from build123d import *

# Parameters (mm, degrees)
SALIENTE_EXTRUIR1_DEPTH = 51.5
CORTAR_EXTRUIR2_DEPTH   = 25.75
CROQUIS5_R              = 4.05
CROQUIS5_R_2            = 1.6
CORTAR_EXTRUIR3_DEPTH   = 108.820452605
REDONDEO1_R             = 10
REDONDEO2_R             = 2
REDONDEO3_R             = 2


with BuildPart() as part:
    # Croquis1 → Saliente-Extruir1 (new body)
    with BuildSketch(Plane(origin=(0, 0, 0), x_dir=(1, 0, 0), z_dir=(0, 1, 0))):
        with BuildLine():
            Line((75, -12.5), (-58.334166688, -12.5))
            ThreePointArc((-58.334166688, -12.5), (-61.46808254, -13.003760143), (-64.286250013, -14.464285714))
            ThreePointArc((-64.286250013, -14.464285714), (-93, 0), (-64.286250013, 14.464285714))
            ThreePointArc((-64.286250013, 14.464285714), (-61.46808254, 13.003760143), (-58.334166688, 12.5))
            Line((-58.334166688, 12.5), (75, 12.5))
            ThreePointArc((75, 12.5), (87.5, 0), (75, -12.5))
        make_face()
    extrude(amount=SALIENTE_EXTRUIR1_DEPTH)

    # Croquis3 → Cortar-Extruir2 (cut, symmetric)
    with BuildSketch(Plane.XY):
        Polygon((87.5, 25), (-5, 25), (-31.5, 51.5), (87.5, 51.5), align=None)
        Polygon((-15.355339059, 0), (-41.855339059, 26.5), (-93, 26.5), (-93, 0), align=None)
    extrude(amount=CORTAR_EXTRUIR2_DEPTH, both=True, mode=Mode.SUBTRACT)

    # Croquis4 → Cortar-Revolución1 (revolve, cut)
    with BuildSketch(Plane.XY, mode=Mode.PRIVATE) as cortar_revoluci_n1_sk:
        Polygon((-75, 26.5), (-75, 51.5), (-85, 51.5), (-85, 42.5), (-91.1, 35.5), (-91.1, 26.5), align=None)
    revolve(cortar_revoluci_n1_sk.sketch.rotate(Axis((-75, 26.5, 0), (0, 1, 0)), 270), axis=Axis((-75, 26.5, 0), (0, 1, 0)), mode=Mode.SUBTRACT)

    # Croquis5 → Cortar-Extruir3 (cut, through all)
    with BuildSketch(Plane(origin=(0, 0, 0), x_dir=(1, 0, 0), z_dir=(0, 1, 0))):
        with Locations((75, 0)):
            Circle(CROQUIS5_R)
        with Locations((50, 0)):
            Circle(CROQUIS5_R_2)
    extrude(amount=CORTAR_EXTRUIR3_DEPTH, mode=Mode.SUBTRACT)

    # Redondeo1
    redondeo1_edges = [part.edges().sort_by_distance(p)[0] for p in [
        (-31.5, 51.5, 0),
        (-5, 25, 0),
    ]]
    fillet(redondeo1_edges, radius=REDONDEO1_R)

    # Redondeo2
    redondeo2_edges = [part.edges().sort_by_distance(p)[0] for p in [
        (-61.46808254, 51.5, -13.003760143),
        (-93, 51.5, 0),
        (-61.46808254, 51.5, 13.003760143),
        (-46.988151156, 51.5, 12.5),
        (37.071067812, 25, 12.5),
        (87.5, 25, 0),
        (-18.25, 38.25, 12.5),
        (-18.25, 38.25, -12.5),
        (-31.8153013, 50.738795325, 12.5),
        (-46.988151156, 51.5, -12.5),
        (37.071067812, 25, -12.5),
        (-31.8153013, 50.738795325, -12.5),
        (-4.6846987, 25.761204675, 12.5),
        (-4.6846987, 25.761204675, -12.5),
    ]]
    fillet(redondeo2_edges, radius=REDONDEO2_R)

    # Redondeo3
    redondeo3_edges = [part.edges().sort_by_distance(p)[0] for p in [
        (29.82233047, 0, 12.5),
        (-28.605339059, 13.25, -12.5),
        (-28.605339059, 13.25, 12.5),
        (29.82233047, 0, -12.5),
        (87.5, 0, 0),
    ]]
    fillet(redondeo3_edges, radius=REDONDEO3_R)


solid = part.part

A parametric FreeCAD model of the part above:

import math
import FreeCAD as App
import Part
import Sketcher

V = App.Vector
Q = App.Units.Quantity


def edges_at(feature, points):
    """Names of the edges that pass closest to the given points."""
    edges = feature.Shape.Edges
    near = lambda p: min(range(len(edges)), key=lambda i: edges[i].distToShape(Part.Vertex(*p))[0])
    return sorted({f"Edge{near(p) + 1}" for p in points})

doc = App.newDocument("Part")
params = doc.addObject("Spreadsheet::Sheet", "Params")
for row, (alias, value) in enumerate([
    ("sketch1_radius", "10 mm"),
    ("sketch1_radius2", "18 mm"),
    ("sketch1_radius3", "12.5 mm"),
    ("pad1_length", "51.5 mm"),
    ("sketch2_width", "119 mm"),
    ("sketch2_width2", "92.5 mm"),
    ("pocket1_length", "51.5 mm"),
    ("sketch3_width", "10 mm"),
    ("sketch3_height", "25 mm"),
    ("sketch3_height2", "9 mm"),
    ("sketch3_width2", "16.1 mm"),
    ("groove_angle", "360 deg"),
    ("sketch4_diameter", "8.1 mm"),
    ("sketch4_diameter2", "3.2 mm"),
    ("fillet_radius", "10 mm"),
    ("fillet2_radius", "2 mm"),
    ("fillet3_radius", "2 mm"),
], start=1):
    params.set(f"A{row}", alias)
    params.set(f"B{row}", "=" + value)
    params.setAlias(f"B{row}", alias)

body = doc.addObject("PartDesign::Body", "Body")

# Sketch on XZ plane
sketch1 = body.newObject("Sketcher::SketchObject", "Sketch")
sketch1.AttachmentSupport = (doc.getObject("XZ_Plane"), [""])
sketch1.MapMode = "FlatFace"
sketch1.addGeometry([
    Part.LineSegment(V(-58, 12, 0), V(75, 12, 0)),  # 0
    Part.ArcOfCircle(Part.Circle(V(75, 0, 0), V(0, 0, 1), 12), math.radians(-90), math.radians(90)),  # 1
    Part.LineSegment(V(75, -12, 0), V(-58, -12, 0)),  # 2
    Part.ArcOfCircle(Part.Circle(V(-58, -23, 0), V(0, 0, 1), 10), math.radians(90), math.radians(127)),  # 3
    Part.ArcOfCircle(Part.Circle(V(-75, 0, 0), V(0, 0, 1), 18), math.radians(53), math.radians(307)),  # 4
    Part.ArcOfCircle(Part.Circle(V(-58, 23, 0), V(0, 0, 1), 10), math.radians(-127), math.radians(-90)),  # 5
], False)
sketch1.addConstraint([
    Sketcher.Constraint("Tangent", 0, 2, 1, 2),
    Sketcher.Constraint("Tangent", 1, 1, 2, 1),
    Sketcher.Constraint("Tangent", 2, 2, 3, 1),
    Sketcher.Constraint("Tangent", 3, 2, 4, 2),
    Sketcher.Constraint("Tangent", 4, 1, 5, 1),
    Sketcher.Constraint("Tangent", 5, 2, 0, 1),
    Sketcher.Constraint("Horizontal", 0),
    Sketcher.Constraint("Horizontal", 2),
    Sketcher.Constraint("Equal", 3, 5),
    Sketcher.Constraint("Symmetric", 1, 3, 4, 3, -1, 1),
    Sketcher.Constraint("PointOnObject", 1, 3, -1),
    Sketcher.Constraint("Radius", 3, Q("10 mm")),
    Sketcher.Constraint("Radius", 4, Q("18 mm")),
    Sketcher.Constraint("Radius", 1, Q("12.5 mm")),
    Sketcher.Constraint("DistanceX", -1, 1, 1, 3, Q("75 mm")),
])
sketch1.setExpression("Constraints[11]", "Params.sketch1_radius")
sketch1.setExpression("Constraints[12]", "Params.sketch1_radius2")
sketch1.setExpression("Constraints[13]", "Params.sketch1_radius3")
pad1 = body.newObject("PartDesign::Pad", "Pad")
pad1.Profile = sketch1
pad1.setExpression("Length", "Params.pad1_length")
pad1.Reversed = True

# Sketch on XY plane
sketch2 = body.newObject("Sketcher::SketchObject", "Sketch001")
sketch2.AttachmentSupport = (doc.getObject("XY_Plane"), [""])
sketch2.MapMode = "FlatFace"
sketch2.addGeometry([
    Part.LineSegment(V(-5, 25, 0), V(88, 25, 0)),  # 0
    Part.LineSegment(V(88, 25, 0), V(88, 52, 0)),  # 1
    Part.LineSegment(V(88, 52, 0), V(-32, 52, 0)),  # 2
    Part.LineSegment(V(-32, 52, 0), V(-5, 25, 0)),  # 3
    Part.LineSegment(V(-15, 0, 0), V(-42, 26, 0)),  # 4
    Part.LineSegment(V(-42, 26, 0), V(-93, 26, 0)),  # 5
    Part.LineSegment(V(-93, 26, 0), V(-93, 0, 0)),  # 6
    Part.LineSegment(V(-93, 0, 0), V(-15, 0, 0)),  # 7
], False)
sketch2.addConstraint([
    Sketcher.Constraint("Coincident", 0, 2, 1, 1),
    Sketcher.Constraint("Coincident", 1, 2, 2, 1),
    Sketcher.Constraint("Coincident", 2, 2, 3, 1),
    Sketcher.Constraint("Coincident", 3, 2, 0, 1),
    Sketcher.Constraint("Coincident", 4, 2, 5, 1),
    Sketcher.Constraint("Coincident", 5, 2, 6, 1),
    Sketcher.Constraint("Coincident", 6, 2, 7, 1),
    Sketcher.Constraint("Coincident", 7, 2, 4, 1),
    Sketcher.Constraint("Horizontal", 0),
    Sketcher.Constraint("Vertical", 1),
    Sketcher.Constraint("Horizontal", 2),
    Sketcher.Constraint("Horizontal", 5),
    Sketcher.Constraint("Vertical", 6),
    Sketcher.Constraint("Horizontal", 7),
    Sketcher.Constraint("PointOnObject", 6, 2, -1),
    Sketcher.Constraint("Parallel", 3, 4),
    Sketcher.Constraint("Equal", 1, 6),
    Sketcher.Constraint("DistanceX", 2, 2, 2, 1, Q("119 mm")),
    Sketcher.Constraint("Angle", 3, Q("-45 deg")),
    Sketcher.Constraint("DistanceX", 0, 1, 0, 2, Q("92.5 mm")),
    Sketcher.Constraint("DistanceY", -1, 1, 0, 2, Q("25 mm")),
    Sketcher.Constraint("DistanceX", 3, 2, -1, 1, Q("5 mm")),
    Sketcher.Constraint("DistanceX", 5, 2, -1, 1, Q("93 mm")),
    Sketcher.Constraint("DistanceX", 5, 2, 5, 1, Q("51.144661 mm")),
])
sketch2.setExpression("Constraints[17]", "Params.sketch2_width")
sketch2.setExpression("Constraints[19]", "Params.sketch2_width2")
pocket1 = body.newObject("PartDesign::Pocket", "Pocket")
pocket1.Profile = sketch2
pocket1.setExpression("Length", "Params.pocket1_length")
pocket1.Midplane = True

# Sketch on XY plane
sketch3 = body.newObject("Sketcher::SketchObject", "Sketch002")
sketch3.AttachmentSupport = (doc.getObject("XY_Plane"), [""])
sketch3.MapMode = "FlatFace"
sketch3.addGeometry([
    Part.LineSegment(V(-75, 26, 0), V(-75, 52, 0)),  # 0
    Part.LineSegment(V(-75, 52, 0), V(-85, 52, 0)),  # 1
    Part.LineSegment(V(-85, 52, 0), V(-85, 42, 0)),  # 2
    Part.LineSegment(V(-85, 42, 0), V(-91, 36, 0)),  # 3
    Part.LineSegment(V(-91, 36, 0), V(-91, 26, 0)),  # 4
    Part.LineSegment(V(-91, 26, 0), V(-75, 26, 0)),  # 5
], False)
sketch3.addGeometry(Part.LineSegment(V(-75, 26, 0), V(-75, 52, 0)), True)  # axis
sketch3.addConstraint([
    Sketcher.Constraint("Coincident", 0, 2, 1, 1),
    Sketcher.Constraint("Coincident", 1, 2, 2, 1),
    Sketcher.Constraint("Coincident", 2, 2, 3, 1),
    Sketcher.Constraint("Coincident", 3, 2, 4, 1),
    Sketcher.Constraint("Coincident", 4, 2, 5, 1),
    Sketcher.Constraint("Coincident", 5, 2, 0, 1),
    Sketcher.Constraint("Vertical", 0),
    Sketcher.Constraint("Horizontal", 1),
    Sketcher.Constraint("Vertical", 2),
    Sketcher.Constraint("Vertical", 4),
    Sketcher.Constraint("Horizontal", 5),
    Sketcher.Constraint("Vertical", 6),
    Sketcher.Constraint("Coincident", 6, 1, 5, 2),
    Sketcher.Constraint("Horizontal", 1, 2, 6, 2),
    Sketcher.Constraint("Equal", 2, 4),
    Sketcher.Constraint("DistanceX", 1, 2, 1, 1, Q("10 mm")),
    Sketcher.Constraint("DistanceY", 0, 1, 0, 2, Q("25 mm")),
    Sketcher.Constraint("DistanceY", 2, 2, 2, 1, Q("9 mm")),
    Sketcher.Constraint("DistanceX", 5, 1, 5, 2, Q("16.1 mm")),
    Sketcher.Constraint("DistanceX", 0, 2, -1, 1, Q("75 mm")),
    Sketcher.Constraint("DistanceY", -1, 1, 0, 2, Q("51.5 mm")),
])
sketch3.setExpression("Constraints[15]", "Params.sketch3_width")
sketch3.setExpression("Constraints[16]", "Params.sketch3_height")
sketch3.setExpression("Constraints[17]", "Params.sketch3_height2")
sketch3.setExpression("Constraints[18]", "Params.sketch3_width2")
groove = body.newObject("PartDesign::Groove", "Groove")
groove.Profile = sketch3
groove.ReferenceAxis = (sketch3, ["Axis0"])
groove.setExpression("Angle", "Params.groove_angle")

# Sketch on XZ plane
sketch4 = body.newObject("Sketcher::SketchObject", "Sketch003")
sketch4.AttachmentSupport = (doc.getObject("XZ_Plane"), [""])
sketch4.MapMode = "FlatFace"
sketch4.addGeometry([
    Part.Circle(V(75, 0, 0), V(0, 0, 1), 4),
    Part.Circle(V(50, 0, 0), V(0, 0, 1), 1.6),
], False)
sketch4.addConstraint([
    Sketcher.Constraint("PointOnObject", 0, 3, -1),
    Sketcher.Constraint("PointOnObject", 1, 3, -1),
    Sketcher.Constraint("Diameter", 0, Q("8.1 mm")),
    Sketcher.Constraint("Diameter", 1, Q("3.2 mm")),
    Sketcher.Constraint("DistanceX", -1, 1, 0, 3, Q("75 mm")),
    Sketcher.Constraint("DistanceX", -1, 1, 1, 3, Q("50 mm")),
])
sketch4.setExpression("Constraints[2]", "Params.sketch4_diameter")
sketch4.setExpression("Constraints[3]", "Params.sketch4_diameter2")
pocket2 = body.newObject("PartDesign::Pocket", "Pocket001")
pocket2.Profile = sketch4
pocket2.Type = "ThroughAll"
doc.recompute()

fillet = body.newObject("PartDesign::Fillet", "Fillet")
fillet.Base = (pocket2, edges_at(pocket2, [(-31.5, 51.5, 0), (-5, 25, 0)]))
fillet.setExpression("Radius", "Params.fillet_radius")
doc.recompute()

fillet2 = body.newObject("PartDesign::Fillet", "Fillet001")
fillet2.Base = (fillet, edges_at(fillet, [
    (-61.468, 51.5, -13.004),
    (-93, 51.5, 0),
    (-61.468, 51.5, 13.004),
    (-46.988, 51.5, 12.5),
    (37.071, 25, 12.5),
    (87.5, 25, 0),
    (-18.25, 38.25, 12.5),
    (-18.25, 38.25, -12.5),
    (-31.815, 50.739, 12.5),
    (-46.988, 51.5, -12.5),
    (37.071, 25, -12.5),
    (-31.815, 50.739, -12.5),
    (-4.685, 25.761, 12.5),
    (-4.685, 25.761, -12.5),
]))
fillet2.setExpression("Radius", "Params.fillet2_radius")
doc.recompute()

fillet3 = body.newObject("PartDesign::Fillet", "Fillet002")
fillet3.Base = (fillet2, edges_at(fillet2, [
    (29.822, 0, 12.5),
    (-28.605, 13.25, -12.5),
    (-28.605, 13.25, 12.5),
    (29.822, 0, -12.5),
    (87.5, 0, 0),
]))
fillet3.setExpression("Radius", "Params.fillet3_radius")

doc.recompute()
